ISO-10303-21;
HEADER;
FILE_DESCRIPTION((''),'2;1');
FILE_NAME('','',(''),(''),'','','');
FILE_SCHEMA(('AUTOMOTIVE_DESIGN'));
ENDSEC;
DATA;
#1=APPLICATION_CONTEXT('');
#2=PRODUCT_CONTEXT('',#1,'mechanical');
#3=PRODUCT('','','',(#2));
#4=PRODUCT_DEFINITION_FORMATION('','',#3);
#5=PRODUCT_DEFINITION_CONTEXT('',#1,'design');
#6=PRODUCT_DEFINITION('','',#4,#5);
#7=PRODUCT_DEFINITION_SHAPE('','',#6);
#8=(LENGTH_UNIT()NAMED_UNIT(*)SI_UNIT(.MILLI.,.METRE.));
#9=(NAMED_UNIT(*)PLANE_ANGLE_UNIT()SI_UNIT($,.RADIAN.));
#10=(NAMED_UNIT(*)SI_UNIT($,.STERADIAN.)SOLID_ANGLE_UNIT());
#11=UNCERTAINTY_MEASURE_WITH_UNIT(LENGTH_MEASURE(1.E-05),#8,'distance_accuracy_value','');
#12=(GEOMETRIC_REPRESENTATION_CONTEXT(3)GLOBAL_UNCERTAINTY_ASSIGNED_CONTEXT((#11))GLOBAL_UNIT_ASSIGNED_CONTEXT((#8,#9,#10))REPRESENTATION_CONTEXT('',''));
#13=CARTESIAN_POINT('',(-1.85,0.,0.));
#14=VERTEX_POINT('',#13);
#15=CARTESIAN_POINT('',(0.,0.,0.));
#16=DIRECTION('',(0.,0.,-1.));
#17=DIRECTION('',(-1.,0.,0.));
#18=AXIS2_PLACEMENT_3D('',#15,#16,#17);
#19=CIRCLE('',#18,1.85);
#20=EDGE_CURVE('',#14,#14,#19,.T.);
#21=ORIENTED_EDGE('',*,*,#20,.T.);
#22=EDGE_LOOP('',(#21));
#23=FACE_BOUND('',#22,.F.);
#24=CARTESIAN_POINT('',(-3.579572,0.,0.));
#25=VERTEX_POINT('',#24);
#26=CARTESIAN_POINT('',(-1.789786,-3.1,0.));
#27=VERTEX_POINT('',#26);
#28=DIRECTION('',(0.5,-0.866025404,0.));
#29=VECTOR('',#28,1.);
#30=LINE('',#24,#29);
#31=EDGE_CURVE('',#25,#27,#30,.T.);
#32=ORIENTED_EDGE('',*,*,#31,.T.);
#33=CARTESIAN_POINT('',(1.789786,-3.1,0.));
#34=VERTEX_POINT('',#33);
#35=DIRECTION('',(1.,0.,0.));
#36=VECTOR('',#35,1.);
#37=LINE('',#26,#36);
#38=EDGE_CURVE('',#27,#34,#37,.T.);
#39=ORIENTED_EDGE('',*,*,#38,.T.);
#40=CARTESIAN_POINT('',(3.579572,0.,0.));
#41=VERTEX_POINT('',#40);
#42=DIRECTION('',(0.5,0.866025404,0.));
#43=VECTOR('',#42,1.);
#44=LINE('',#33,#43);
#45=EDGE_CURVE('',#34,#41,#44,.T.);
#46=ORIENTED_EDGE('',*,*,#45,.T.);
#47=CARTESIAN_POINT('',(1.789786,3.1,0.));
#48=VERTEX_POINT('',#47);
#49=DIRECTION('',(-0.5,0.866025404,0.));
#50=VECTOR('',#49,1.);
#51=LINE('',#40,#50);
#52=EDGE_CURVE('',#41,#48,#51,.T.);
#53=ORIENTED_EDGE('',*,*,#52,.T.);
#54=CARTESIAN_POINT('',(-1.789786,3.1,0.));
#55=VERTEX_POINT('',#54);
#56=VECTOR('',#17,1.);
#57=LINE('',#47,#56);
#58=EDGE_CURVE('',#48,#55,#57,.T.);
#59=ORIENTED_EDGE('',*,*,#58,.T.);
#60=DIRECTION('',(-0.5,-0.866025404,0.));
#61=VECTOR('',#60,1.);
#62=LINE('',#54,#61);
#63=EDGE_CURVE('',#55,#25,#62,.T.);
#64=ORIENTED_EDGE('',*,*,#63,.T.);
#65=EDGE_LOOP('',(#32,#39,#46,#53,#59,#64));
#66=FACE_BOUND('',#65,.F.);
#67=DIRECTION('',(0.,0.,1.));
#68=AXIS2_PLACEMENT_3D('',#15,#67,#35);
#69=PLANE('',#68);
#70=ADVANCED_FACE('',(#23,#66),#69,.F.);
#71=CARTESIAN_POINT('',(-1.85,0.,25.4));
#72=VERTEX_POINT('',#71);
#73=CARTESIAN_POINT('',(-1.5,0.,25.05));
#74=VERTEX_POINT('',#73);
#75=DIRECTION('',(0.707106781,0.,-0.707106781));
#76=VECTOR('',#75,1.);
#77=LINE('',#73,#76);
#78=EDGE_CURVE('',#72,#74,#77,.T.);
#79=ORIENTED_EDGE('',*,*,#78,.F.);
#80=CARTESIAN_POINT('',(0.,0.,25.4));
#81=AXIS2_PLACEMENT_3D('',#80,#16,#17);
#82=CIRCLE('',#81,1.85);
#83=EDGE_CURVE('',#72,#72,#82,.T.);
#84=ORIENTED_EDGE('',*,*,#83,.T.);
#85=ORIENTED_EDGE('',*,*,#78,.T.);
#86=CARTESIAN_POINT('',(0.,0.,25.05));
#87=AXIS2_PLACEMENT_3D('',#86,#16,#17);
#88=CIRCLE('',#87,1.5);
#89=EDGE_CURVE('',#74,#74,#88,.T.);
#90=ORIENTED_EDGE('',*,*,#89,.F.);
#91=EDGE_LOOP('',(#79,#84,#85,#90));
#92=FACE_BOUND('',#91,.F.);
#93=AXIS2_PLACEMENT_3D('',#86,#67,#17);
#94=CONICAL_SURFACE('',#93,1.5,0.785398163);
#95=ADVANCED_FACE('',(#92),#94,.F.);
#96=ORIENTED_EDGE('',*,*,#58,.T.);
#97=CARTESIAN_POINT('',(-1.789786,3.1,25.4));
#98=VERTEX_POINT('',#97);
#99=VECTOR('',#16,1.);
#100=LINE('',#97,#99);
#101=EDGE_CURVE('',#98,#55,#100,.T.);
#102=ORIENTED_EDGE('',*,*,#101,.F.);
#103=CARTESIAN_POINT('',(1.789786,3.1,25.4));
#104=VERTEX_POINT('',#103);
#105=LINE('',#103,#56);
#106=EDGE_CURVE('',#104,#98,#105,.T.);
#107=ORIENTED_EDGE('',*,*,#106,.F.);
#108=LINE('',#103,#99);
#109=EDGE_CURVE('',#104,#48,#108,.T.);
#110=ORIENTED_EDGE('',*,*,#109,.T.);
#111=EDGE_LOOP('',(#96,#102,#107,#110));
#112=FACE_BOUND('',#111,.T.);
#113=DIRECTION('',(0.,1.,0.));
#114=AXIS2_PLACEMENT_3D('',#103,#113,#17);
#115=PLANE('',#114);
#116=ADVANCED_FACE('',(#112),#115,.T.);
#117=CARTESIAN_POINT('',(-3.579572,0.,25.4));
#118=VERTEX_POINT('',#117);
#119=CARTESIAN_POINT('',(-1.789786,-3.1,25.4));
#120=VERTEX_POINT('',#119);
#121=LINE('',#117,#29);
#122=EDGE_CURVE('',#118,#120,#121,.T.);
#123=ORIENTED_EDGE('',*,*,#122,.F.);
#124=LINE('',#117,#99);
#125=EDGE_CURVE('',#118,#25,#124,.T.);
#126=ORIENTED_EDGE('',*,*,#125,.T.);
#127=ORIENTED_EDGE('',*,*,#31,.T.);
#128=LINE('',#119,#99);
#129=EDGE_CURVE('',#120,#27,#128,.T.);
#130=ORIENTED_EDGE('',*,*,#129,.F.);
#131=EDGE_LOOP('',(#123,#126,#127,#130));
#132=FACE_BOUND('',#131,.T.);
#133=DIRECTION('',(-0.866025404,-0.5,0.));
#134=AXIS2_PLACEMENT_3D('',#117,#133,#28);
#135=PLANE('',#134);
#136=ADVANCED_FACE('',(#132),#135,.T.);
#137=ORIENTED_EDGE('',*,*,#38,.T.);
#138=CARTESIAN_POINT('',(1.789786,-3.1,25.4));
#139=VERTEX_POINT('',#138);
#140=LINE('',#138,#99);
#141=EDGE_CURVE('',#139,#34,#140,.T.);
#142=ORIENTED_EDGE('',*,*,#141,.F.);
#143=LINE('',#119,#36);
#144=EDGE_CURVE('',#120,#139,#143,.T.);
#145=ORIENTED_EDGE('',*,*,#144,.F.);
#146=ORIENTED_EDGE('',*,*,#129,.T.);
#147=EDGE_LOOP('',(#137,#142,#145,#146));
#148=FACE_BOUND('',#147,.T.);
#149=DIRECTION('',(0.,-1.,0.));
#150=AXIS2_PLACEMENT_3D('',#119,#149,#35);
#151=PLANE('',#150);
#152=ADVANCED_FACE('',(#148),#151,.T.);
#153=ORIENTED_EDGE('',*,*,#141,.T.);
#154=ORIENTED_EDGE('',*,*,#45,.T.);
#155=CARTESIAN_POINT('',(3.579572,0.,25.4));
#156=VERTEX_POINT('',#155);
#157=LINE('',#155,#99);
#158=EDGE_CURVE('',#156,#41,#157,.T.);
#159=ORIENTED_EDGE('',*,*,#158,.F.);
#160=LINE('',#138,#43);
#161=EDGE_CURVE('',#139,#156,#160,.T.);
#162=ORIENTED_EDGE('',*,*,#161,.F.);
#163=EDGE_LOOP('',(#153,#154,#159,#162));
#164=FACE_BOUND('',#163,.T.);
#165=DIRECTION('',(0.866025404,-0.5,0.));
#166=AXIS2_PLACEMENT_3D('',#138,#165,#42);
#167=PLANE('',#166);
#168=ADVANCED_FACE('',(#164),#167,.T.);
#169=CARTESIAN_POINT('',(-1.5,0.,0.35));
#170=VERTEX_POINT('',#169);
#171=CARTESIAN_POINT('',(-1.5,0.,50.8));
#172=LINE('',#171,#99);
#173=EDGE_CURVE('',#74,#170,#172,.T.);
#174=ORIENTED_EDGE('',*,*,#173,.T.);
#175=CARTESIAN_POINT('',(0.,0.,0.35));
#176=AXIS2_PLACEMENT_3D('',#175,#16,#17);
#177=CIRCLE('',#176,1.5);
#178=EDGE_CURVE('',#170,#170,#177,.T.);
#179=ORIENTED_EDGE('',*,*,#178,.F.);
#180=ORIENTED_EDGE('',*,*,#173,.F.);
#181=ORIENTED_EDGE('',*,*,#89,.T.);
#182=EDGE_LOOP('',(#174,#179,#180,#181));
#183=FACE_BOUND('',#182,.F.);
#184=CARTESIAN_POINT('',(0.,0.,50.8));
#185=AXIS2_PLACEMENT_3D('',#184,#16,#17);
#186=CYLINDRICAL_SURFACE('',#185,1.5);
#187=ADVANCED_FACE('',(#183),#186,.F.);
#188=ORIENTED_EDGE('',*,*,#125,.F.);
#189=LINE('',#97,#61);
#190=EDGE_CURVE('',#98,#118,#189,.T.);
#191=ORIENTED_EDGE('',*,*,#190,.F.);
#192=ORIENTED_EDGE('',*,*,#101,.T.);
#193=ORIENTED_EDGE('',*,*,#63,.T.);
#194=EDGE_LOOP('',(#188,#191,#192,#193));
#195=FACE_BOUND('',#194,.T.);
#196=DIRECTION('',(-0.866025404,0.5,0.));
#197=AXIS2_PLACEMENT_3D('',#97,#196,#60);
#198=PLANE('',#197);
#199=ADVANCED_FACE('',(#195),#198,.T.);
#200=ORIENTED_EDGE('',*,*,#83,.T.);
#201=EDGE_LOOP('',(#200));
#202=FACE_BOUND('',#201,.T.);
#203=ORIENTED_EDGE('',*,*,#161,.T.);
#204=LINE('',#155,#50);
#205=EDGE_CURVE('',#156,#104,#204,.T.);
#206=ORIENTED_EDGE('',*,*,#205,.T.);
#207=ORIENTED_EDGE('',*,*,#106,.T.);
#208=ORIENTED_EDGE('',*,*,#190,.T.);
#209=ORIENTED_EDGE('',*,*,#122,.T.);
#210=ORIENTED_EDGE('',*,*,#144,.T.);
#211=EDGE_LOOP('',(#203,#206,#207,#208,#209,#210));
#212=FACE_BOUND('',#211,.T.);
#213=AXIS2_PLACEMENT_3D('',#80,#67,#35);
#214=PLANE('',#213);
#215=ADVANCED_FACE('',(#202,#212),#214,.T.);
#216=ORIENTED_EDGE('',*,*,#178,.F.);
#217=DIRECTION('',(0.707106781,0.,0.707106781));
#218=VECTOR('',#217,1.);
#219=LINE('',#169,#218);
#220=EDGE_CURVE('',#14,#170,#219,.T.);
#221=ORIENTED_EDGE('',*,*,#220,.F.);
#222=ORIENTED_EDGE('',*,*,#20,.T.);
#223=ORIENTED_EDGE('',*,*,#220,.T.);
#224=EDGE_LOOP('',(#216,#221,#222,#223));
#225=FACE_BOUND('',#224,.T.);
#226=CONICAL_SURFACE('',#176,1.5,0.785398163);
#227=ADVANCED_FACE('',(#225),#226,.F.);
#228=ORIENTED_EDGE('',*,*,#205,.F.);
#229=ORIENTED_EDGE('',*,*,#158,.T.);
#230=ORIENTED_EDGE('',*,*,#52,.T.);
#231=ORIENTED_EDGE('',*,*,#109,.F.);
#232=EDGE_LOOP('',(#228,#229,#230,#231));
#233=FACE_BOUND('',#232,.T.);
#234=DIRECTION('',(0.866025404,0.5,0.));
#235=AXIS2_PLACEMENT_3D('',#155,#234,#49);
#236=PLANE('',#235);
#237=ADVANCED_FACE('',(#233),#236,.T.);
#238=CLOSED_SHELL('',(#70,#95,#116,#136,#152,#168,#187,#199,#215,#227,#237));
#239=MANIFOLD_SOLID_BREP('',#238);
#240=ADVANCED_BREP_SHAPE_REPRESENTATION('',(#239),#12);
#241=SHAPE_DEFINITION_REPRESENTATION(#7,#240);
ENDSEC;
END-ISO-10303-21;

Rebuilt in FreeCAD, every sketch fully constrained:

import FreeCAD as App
import Part
import Sketcher

V = App.Vector
Q = App.Units.Quantity


def edges_at(feature, points):
    """Names of the edges that pass closest to the given points."""
    edges = feature.Shape.Edges
    near = lambda p: min(range(len(edges)), key=lambda i: edges[i].distToShape(Part.Vertex(*p))[0])
    return sorted({f"Edge{near(p) + 1}" for p in points})


def add_polygon(sketch, points):
    """Adds a closed chain of lines whose ends are joined by coincident constraints."""
    first, n = sketch.GeometryCount, len(points)
    for a, b in zip(points, points[1:] + points[:1]):
        sketch.addGeometry(Part.LineSegment(App.Vector(*a, 0), App.Vector(*b, 0)), False)
    for i in range(n):
        sketch.addConstraint(Sketcher.Constraint("Coincident", first + i, 2, first + (i + 1) % n, 1))

doc = App.newDocument("Part")
body = doc.addObject("PartDesign::Body", "Body")

sketch1 = body.newObject("Sketcher::SketchObject", "Sketch")
sketch1.AttachmentSupport = (doc.getObject("XY_Plane"), [""])
sketch1.MapMode = "FlatFace"
sketch1.AttachmentOffset = App.Placement(V(0, 0, 25.4), App.Rotation())
add_polygon(sketch1, [(-3.6, 0), (-1.8, -3.1), (1.8, -3.1), (3.6, 0), (1.8, 3.1), (-1.8, 3.1)])
sketch1.addConstraint(Sketcher.Constraint("Horizontal", 1))
sketch1.addConstraint(Sketcher.Constraint("Horizontal", 4))
sketch1.addConstraint(Sketcher.Constraint("Symmetric", 0, 2, 3, 2, -1, 1))
sketch1.addConstraint(Sketcher.Constraint("Symmetric", 2, 2, 5, 2, -1, 1))
sketch1.addConstraint(Sketcher.Constraint("PointOnObject", 2, 2, -1))
sketch1.addConstraint(Sketcher.Constraint("Parallel", 2, 5))
sketch1.addConstraint(Sketcher.Constraint("Vertical", 1, 2, 3, 2))
sketch1.addConstraint(Sketcher.Constraint("Angle", 0, Q("-60 deg")))
sketch1.addConstraint(Sketcher.Constraint("DistanceY", 0, 2, -1, 1, Q("3.1 mm")))
sketch1.addConstraint(Sketcher.Constraint("DistanceX", 1, 1, 1, 2, Q("3.579572 mm")))
pad1 = body.newObject("PartDesign::Pad", "Pad")
pad1.Profile = sketch1
pad1.Length = 25.4
pad1.Reversed = True

sketch2 = body.newObject("Sketcher::SketchObject", "Sketch001")
sketch2.AttachmentSupport = (doc.getObject("XY_Plane"), [""])
sketch2.MapMode = "FlatFace"
sketch2.AttachmentOffset = App.Placement(V(0, 0, 25.4), App.Rotation())
sketch2.addGeometry(Part.Circle(V(0, 0, 0), V(0, 0, 1), 1.5), False)
sketch2.addConstraint(Sketcher.Constraint("Coincident", 0, 3, -1, 1))
sketch2.addConstraint(Sketcher.Constraint("Diameter", 0, Q("3 mm")))
doc.recompute()
hole = body.newObject("PartDesign::Hole", "Hole")
hole.Profile = sketch2
hole.ThreadType = "None"
hole.Diameter = 3
hole.DepthType = "Dimension"
hole.Depth = 25.4
hole.DrillPoint = "Flat"
doc.recompute()

chamfer = body.newObject("PartDesign::Chamfer", "Chamfer")
chamfer.Base = (hole, edges_at(hole, [(1.5, 0, 25.4), (1.5, 0, 0)]))
chamfer.Size = 0.35

doc.recompute()
